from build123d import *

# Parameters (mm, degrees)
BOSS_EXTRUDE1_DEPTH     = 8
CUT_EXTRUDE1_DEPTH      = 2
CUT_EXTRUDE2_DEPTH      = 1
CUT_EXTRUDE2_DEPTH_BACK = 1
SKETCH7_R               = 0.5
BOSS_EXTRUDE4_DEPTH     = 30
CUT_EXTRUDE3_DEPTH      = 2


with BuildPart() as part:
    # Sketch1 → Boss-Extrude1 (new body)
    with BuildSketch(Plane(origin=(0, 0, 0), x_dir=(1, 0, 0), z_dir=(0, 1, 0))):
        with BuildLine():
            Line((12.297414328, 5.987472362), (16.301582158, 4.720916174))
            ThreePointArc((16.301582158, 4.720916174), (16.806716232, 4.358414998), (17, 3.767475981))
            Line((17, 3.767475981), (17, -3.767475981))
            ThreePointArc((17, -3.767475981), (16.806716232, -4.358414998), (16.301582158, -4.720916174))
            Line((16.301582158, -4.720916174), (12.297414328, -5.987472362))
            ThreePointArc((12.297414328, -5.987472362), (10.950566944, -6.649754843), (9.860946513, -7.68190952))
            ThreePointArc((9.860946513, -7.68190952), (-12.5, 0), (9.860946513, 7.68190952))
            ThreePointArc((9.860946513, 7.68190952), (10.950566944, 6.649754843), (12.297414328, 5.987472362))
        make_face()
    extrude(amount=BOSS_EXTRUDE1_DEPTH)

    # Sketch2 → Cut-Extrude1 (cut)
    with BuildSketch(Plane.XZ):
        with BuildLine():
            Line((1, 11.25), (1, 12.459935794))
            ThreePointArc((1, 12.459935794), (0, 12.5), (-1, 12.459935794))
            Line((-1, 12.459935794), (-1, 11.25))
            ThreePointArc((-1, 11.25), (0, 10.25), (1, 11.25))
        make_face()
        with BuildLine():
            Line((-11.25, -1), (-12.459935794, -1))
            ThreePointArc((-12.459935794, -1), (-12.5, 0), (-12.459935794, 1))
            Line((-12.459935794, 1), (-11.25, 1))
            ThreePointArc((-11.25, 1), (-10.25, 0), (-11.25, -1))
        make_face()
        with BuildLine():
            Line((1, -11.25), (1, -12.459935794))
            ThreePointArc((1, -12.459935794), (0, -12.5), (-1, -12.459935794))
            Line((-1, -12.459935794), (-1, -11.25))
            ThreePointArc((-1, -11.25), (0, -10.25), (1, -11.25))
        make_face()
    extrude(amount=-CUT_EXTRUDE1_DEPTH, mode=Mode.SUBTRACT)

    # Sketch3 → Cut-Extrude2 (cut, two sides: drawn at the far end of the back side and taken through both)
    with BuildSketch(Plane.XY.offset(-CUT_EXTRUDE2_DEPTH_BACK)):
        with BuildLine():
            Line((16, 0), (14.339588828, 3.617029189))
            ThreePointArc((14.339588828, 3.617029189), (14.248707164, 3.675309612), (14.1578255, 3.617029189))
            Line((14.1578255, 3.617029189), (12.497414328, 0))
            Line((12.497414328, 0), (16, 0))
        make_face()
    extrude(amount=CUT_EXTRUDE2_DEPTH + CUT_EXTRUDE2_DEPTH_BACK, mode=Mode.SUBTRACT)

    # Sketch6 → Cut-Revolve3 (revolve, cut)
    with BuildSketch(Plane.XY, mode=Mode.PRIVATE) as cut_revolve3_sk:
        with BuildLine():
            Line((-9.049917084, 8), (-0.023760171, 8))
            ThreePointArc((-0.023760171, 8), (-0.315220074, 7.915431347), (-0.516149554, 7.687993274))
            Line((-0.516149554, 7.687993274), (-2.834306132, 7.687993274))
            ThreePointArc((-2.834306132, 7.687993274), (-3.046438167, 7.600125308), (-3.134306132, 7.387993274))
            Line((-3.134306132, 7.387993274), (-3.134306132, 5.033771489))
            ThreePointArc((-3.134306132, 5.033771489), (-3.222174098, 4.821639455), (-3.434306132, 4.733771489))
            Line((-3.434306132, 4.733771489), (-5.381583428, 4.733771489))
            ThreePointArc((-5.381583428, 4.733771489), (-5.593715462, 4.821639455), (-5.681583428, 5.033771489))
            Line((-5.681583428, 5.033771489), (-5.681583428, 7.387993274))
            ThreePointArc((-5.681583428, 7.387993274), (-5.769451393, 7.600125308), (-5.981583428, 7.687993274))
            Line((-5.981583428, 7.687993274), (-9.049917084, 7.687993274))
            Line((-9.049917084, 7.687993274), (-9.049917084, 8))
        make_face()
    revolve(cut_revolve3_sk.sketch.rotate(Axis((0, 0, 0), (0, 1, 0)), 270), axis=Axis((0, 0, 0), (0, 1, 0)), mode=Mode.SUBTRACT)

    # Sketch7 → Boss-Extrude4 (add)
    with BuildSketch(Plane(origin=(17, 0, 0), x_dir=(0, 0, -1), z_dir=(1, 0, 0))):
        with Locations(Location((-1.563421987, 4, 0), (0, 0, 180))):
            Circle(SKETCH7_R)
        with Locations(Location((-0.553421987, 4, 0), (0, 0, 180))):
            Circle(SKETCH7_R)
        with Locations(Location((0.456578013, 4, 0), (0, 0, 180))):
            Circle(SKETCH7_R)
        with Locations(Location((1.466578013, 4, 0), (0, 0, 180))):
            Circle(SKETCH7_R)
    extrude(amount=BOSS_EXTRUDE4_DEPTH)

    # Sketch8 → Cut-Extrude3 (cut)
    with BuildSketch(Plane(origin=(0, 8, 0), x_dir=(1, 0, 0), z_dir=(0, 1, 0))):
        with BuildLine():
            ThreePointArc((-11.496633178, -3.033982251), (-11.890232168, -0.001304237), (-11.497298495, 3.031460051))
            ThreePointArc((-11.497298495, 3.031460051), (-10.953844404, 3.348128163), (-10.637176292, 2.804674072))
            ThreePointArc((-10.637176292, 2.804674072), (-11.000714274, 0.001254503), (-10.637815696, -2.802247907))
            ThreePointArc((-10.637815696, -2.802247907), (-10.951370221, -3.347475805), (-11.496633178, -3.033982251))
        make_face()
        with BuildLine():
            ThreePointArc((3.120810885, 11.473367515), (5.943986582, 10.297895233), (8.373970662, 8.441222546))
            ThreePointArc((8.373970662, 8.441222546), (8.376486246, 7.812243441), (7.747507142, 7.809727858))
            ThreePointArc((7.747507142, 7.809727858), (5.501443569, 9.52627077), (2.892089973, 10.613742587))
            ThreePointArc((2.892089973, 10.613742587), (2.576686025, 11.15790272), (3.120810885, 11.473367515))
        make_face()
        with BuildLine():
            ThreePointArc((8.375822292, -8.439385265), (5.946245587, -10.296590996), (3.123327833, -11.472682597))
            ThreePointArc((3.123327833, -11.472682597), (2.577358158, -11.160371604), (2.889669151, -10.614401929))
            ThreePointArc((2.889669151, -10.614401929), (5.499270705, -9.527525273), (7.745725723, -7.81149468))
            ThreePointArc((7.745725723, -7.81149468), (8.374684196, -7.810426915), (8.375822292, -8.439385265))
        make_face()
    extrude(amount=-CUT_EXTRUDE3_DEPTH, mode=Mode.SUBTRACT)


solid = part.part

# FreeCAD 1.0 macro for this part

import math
import FreeCAD as App
import Part
import Sketcher
from FreeCAD import Vector
Q = App.Units.Quantity

doc = App.newDocument("Part")
body = doc.addObject("PartDesign::Body", "Body")

# Sketch on XZ plane
sketch1 = body.newObject("Sketcher::SketchObject", "Sketch")
sketch1.AttachmentSupport = (doc.getObject("XZ_Plane"), [""])
sketch1.MapMode = "FlatFace"
sketch1.addGeometry(Part.LineSegment(Vector(16.301582, -4.720916, 0), Vector(12.297414, -5.987472, 0)), False)
sketch1.addGeometry(Part.ArcOfCircle(Part.Circle(Vector(13.805325, -10.754673, 0), Vector(0, 0, 1), 5), math.radians(107.552656), math.radians(142.08057)), False)
sketch1.addGeometry(Part.ArcOfCircle(Part.Circle(Vector(0, 0, 0), Vector(0, 0, 1), 12.5), math.radians(37.91943), math.radians(322.08057)), False)
sketch1.addGeometry(Part.ArcOfCircle(Part.Circle(Vector(13.805325, 10.754673, 0), Vector(0, 0, 1), 5), math.radians(-142.08057), math.radians(-107.552656)), False)
sketch1.addGeometry(Part.LineSegment(Vector(12.297414, 5.987472, 0), Vector(16.301582, 4.720916, 0)), False)
sketch1.addGeometry(Part.ArcOfCircle(Part.Circle(Vector(16, 3.767476, 0), Vector(0, 0, 1), 1), math.radians(0), math.radians(72.447344)), False)
sketch1.addGeometry(Part.LineSegment(Vector(17, 3.767476, 0), Vector(17, -3.767476, 0)), False)
sketch1.addGeometry(Part.ArcOfCircle(Part.Circle(Vector(16, -3.767476, 0), Vector(0, 0, 1), 1), math.radians(-72.447344), math.radians(0)), False)
sketch1.addConstraint(Sketcher.Constraint("Tangent", 0, 2, 1, 1))
sketch1.addConstraint(Sketcher.Constraint("Tangent", 1, 2, 2, 2))
sketch1.addConstraint(Sketcher.Constraint("Tangent", 2, 1, 3, 1))
sketch1.addConstraint(Sketcher.Constraint("Tangent", 3, 2, 4, 1))
sketch1.addConstraint(Sketcher.Constraint("Tangent", 4, 2, 5, 2))
sketch1.addConstraint(Sketcher.Constraint("Tangent", 5, 1, 6, 1))
sketch1.addConstraint(Sketcher.Constraint("Tangent", 6, 2, 7, 2))
sketch1.addConstraint(Sketcher.Constraint("Tangent", 7, 1, 0, 1))
sketch1.addConstraint(Sketcher.Constraint("Vertical", 6))
sketch1.addConstraint(Sketcher.Constraint("Coincident", 2, 3, -1, 1))
sketch1.addConstraint(Sketcher.Constraint("Equal", 1, 3))
sketch1.addConstraint(Sketcher.Constraint("Equal", 5, 7))
sketch1.addConstraint(Sketcher.Constraint("Symmetric", 0, 2, 3, 2, -1))
sketch1.addConstraint(Sketcher.Constraint("Radius", 1, Q("5 mm")))
sketch1.addConstraint(Sketcher.Constraint("Radius", 5, Q("1 mm")))
sketch1.addConstraint(Sketcher.Constraint("Radius", 2, Q("12.5 mm")))
sketch1.addConstraint(Sketcher.Constraint("DistanceX", -1, 1, 5, 3, Q("16 mm")))
sketch1.addConstraint(Sketcher.Constraint("DistanceY", 6, 2, 6, 1, Q("7.534952 mm")))
sketch1.addConstraint(Sketcher.Constraint("DistanceY", 1, 3, 0, 2, Q("4.767201 mm")))
pad1 = body.newObject("PartDesign::Pad", "Pad")
pad1.Profile = sketch1
pad1.Length = 8
pad1.Reversed = True

# Sketch on XZ plane
sketch2 = body.newObject("Sketcher::SketchObject", "Sketch001")
sketch2.AttachmentSupport = (doc.getObject("XZ_Plane"), [""])
sketch2.MapMode = "FlatFace"
sketch2.addGeometry(Part.LineSegment(Vector(1, 11.25, 0), Vector(1, 12.459936, 0)), False)
sketch2.addGeometry(Part.ArcOfCircle(Part.Circle(Vector(0, 0, 0), Vector(0, 0, 1), 12.5), math.radians(85.411434), math.radians(94.588566)), False)
sketch2.addGeometry(Part.LineSegment(Vector(-1, 12.459936, 0), Vector(-1, 11.25, 0)), False)
sketch2.addGeometry(Part.ArcOfCircle(Part.Circle(Vector(0, 11.25, 0), Vector(0, 0, 1), 1), math.radians(180), math.radians(360)), False)
sketch2.addGeometry(Part.LineSegment(Vector(-12.459936, -1, 0), Vector(-11.25, -1, 0)), False)
sketch2.addGeometry(Part.ArcOfCircle(Part.Circle(Vector(-11.25, 0, 0), Vector(0, 0, 1), 1), math.radians(-90), math.radians(90)), False)
sketch2.addGeometry(Part.LineSegment(Vector(-11.25, 1, 0), Vector(-12.459936, 1, 0)), False)
sketch2.addGeometry(Part.ArcOfCircle(Part.Circle(Vector(0, 0, 0), Vector(0, 0, 1), 12.5), math.radians(175.411434), math.radians(184.588566)), False)
sketch2.addGeometry(Part.LineSegment(Vector(1, -12.459936, 0), Vector(1, -11.25, 0)), False)
sketch2.addGeometry(Part.ArcOfCircle(Part.Circle(Vector(0, -11.25, 0), Vector(0, 0, 1), 1), math.radians(0), math.radians(180)), False)
sketch2.addGeometry(Part.LineSegment(Vector(-1, -11.25, 0), Vector(-1, -12.459936, 0)), False)
sketch2.addGeometry(Part.ArcOfCircle(Part.Circle(Vector(0, 0, 0), Vector(0, 0, 1), 12.5), math.radians(-94.588566), math.radians(-85.411434)), False)
sketch2.addConstraint(Sketcher.Constraint("Coincident", 0, 2, 1, 1))
sketch2.addConstraint(Sketcher.Constraint("Coincident", 1, 2, 2, 1))
sketch2.addConstraint(Sketcher.Constraint("Tangent", 2, 2, 3, 1))
sketch2.addConstraint(Sketcher.Constraint("Tangent", 3, 2, 0, 1))
sketch2.addConstraint(Sketcher.Constraint("Tangent", 4, 2, 5, 1))
sketch2.addConstraint(Sketcher.Constraint("Tangent", 5, 2, 6, 1))
sketch2.addConstraint(Sketcher.Constraint("Coincident", 6, 2, 7, 1))
sketch2.addConstraint(Sketcher.Constraint("Coincident", 7, 2, 4, 1))
sketch2.addConstraint(Sketcher.Constraint("Tangent", 8, 2, 9, 1))
sketch2.addConstraint(Sketcher.Constraint("Tangent", 9, 2, 10, 1))
sketch2.addConstraint(Sketcher.Constraint("Coincident", 10, 2, 11, 1))
sketch2.addConstraint(Sketcher.Constraint("Coincident", 11, 2, 8, 1))
sketch2.addConstraint(Sketcher.Constraint("Vertical", 0))
sketch2.addConstraint(Sketcher.Constraint("Vertical", 2))
sketch2.addConstraint(Sketcher.Constraint("Horizontal", 4))
sketch2.addConstraint(Sketcher.Constraint("Horizontal", 6))
sketch2.addConstraint(Sketcher.Constraint("Vertical", 8))
sketch2.addConstraint(Sketcher.Constraint("Vertical", 10))
sketch2.addConstraint(Sketcher.Constraint("Coincident", 1, 3, -1, 1))
sketch2.addConstraint(Sketcher.Constraint("Coincident", 7, 3, -1, 1))
sketch2.addConstraint(Sketcher.Constraint("Coincident", 11, 3, -1, 1))
sketch2.addConstraint(Sketcher.Constraint("Equal", 3, 5))
sketch2.addConstraint(Sketcher.Constraint("Equal", 1, 7))
sketch2.addConstraint(Sketcher.Constraint("Equal", 5, 9))
sketch2.addConstraint(Sketcher.Constraint("Equal", 7, 11))
sketch2.addConstraint(Sketcher.Constraint("Symmetric", 3, 3, 9, 3, -1, 1))
sketch2.addConstraint(Sketcher.Constraint("PointOnObject", 3, 3, -2))
sketch2.addConstraint(Sketcher.Constraint("PointOnObject", 5, 3, -1))
sketch2.addConstraint(Sketcher.Constraint("Equal", 6, 0))
sketch2.addConstraint(Sketcher.Constraint("Radius", 3, Q("1 mm")))
sketch2.addConstraint(Sketcher.Constraint("Radius", 1, Q("12.5 mm")))
sketch2.addConstraint(Sketcher.Constraint("DistanceY", 9, 3, 3, 3, Q("22.5 mm")))
pocket1 = body.newObject("PartDesign::Pocket", "Pocket")
pocket1.Profile = sketch2
pocket1.Length = 2

# Sketch on XY plane
sketch3 = body.newObject("Sketcher::SketchObject", "Sketch002")
sketch3.AttachmentSupport = (doc.getObject("XY_Plane"), [""])
sketch3.MapMode = "FlatFace"
sketch3.addGeometry(Part.LineSegment(Vector(16, 0, 0), Vector(14.339589, 3.617029, 0)), False)
sketch3.addGeometry(Part.ArcOfCircle(Part.Circle(Vector(14.248707, 3.57531, 0), Vector(0, 0, 1), 0.1), math.radians(24.657671), math.radians(155.342329)), False)
sketch3.addGeometry(Part.LineSegment(Vector(14.157825, 3.617029, 0), Vector(12.497414, 0, 0)), False)
sketch3.addGeometry(Part.LineSegment(Vector(12.497414, 0, 0), Vector(16, 0, 0)), False)
sketch3.addConstraint(Sketcher.Constraint("Tangent", 0, 2, 1, 1))
sketch3.addConstraint(Sketcher.Constraint("Tangent", 1, 2, 2, 1))
sketch3.addConstraint(Sketcher.Constraint("Coincident", 2, 2, 3, 1))
sketch3.addConstraint(Sketcher.Constraint("Coincident", 3, 2, 0, 1))
sketch3.addConstraint(Sketcher.Constraint("Horizontal", 3))
sketch3.addConstraint(Sketcher.Constraint("PointOnObject", 2, 2, -1))
sketch3.addConstraint(Sketcher.Constraint("Horizontal", 0, 2, 1, 2))
sketch3.addConstraint(Sketcher.Constraint("Radius", 1, Q("0.1 mm")))
sketch3.addConstraint(Sketcher.Constraint("DistanceX", -1, 1, 3, 2, Q("16 mm")))
sketch3.addConstraint(Sketcher.Constraint("DistanceX", 3, 1, 3, 2, Q("3.502586 mm")))
sketch3.addConstraint(Sketcher.Constraint("DistanceY", -1, 1, 1, 3, Q("3.57531 mm")))
pocket2 = body.newObject("PartDesign::Pocket", "Pocket001")
pocket2.Profile = sketch3
pocket2.Type = "TwoLengths"
pocket2.Length = 1
pocket2.Length2 = 1
pocket2.Reversed = True

# Sketch on XY plane
sketch4 = body.newObject("Sketcher::SketchObject", "Sketch003")
sketch4.AttachmentSupport = (doc.getObject("XY_Plane"), [""])
sketch4.MapMode = "FlatFace"
sketch4.addGeometry(Part.LineSegment(Vector(-0.02376, 8, 0), Vector(-9.049917, 8, 0)), False)
sketch4.addGeometry(Part.LineSegment(Vector(-9.049917, 8, 0), Vector(-9.049917, 7.687993, 0)), False)
sketch4.addGeometry(Part.LineSegment(Vector(-9.049917, 7.687993, 0), Vector(-5.981583, 7.687993, 0)), False)
sketch4.addGeometry(Part.ArcOfCircle(Part.Circle(Vector(-5.981583, 7.387993, 0), Vector(0, 0, 1), 0.3), math.radians(0), math.radians(90)), False)
sketch4.addGeometry(Part.LineSegment(Vector(-5.681583, 7.387993, 0), Vector(-5.681583, 5.033771, 0)), False)
sketch4.addGeometry(Part.ArcOfCircle(Part.Circle(Vector(-5.381583, 5.033771, 0), Vector(0, 0, 1), 0.3), math.radians(-180), math.radians(-90)), False)
sketch4.addGeometry(Part.LineSegment(Vector(-5.381583, 4.733771, 0), Vector(-3.434306, 4.733771, 0)), False)
sketch4.addGeometry(Part.ArcOfCircle(Part.Circle(Vector(-3.434306, 5.033771, 0), Vector(0, 0, 1), 0.3), math.radians(-90), math.radians(0)), False)
sketch4.addGeometry(Part.LineSegment(Vector(-3.134306, 5.033771, 0), Vector(-3.134306, 7.387993, 0)), False)
sketch4.addGeometry(Part.ArcOfCircle(Part.Circle(Vector(-2.834306, 7.387993, 0), Vector(0, 0, 1), 0.3), math.radians(90), math.radians(180)), False)
sketch4.addGeometry(Part.LineSegment(Vector(-2.834306, 7.687993, 0), Vector(-0.51615, 7.687993, 0)), False)
sketch4.addGeometry(Part.ArcOfCircle(Part.Circle(Vector(-0.02376, 7.455468, 0), Vector(0, 0, 1), 0.544532), math.radians(90), math.radians(154.721479)), False)
sketch4.addConstraint(Sketcher.Constraint("Coincident", 0, 2, 1, 1))
sketch4.addConstraint(Sketcher.Constraint("Coincident", 1, 2, 2, 1))
sketch4.addConstraint(Sketcher.Constraint("Tangent", 2, 2, 3, 2))
sketch4.addConstraint(Sketcher.Constraint("Tangent", 3, 1, 4, 1))
sketch4.addConstraint(Sketcher.Constraint("Tangent", 4, 2, 5, 1))
sketch4.addConstraint(Sketcher.Constraint("Tangent", 5, 2, 6, 1))
sketch4.addConstraint(Sketcher.Constraint("Tangent", 6, 2, 7, 1))
sketch4.addConstraint(Sketcher.Constraint("Tangent", 7, 2, 8, 1))
sketch4.addConstraint(Sketcher.Constraint("Tangent", 8, 2, 9, 2))
sketch4.addConstraint(Sketcher.Constraint("Tangent", 9, 1, 10, 1))
sketch4.addConstraint(Sketcher.Constraint("Coincident", 10, 2, 11, 2))
sketch4.addConstraint(Sketcher.Constraint("Tangent", 11, 1, 0, 1))
sketch4.addConstraint(Sketcher.Constraint("Horizontal", 0))
sketch4.addConstraint(Sketcher.Constraint("Vertical", 1))
sketch4.addConstraint(Sketcher.Constraint("Horizontal", 2))
sketch4.addConstraint(Sketcher.Constraint("Vertical", 4))
sketch4.addConstraint(Sketcher.Constraint("Horizontal", 6))
sketch4.addConstraint(Sketcher.Constraint("Vertical", 8))
sketch4.addConstraint(Sketcher.Constraint("Horizontal", 10))
sketch4.addConstraint(Sketcher.Constraint("Equal", 3, 5))
sketch4.addConstraint(Sketcher.Constraint("Equal", 5, 7))
sketch4.addConstraint(Sketcher.Constraint("Equal", 7, 9))
sketch4.addConstraint(Sketcher.Constraint("Horizontal", 3, 3, 9, 3))
sketch4.addConstraint(Sketcher.Constraint("Radius", 3, Q("0.3 mm")))
sketch4.addConstraint(Sketcher.Constraint("DistanceY", -1, 1, 0, 2, Q("8 mm")))
sketch4.addConstraint(Sketcher.Constraint("Radius", 11, Q("0.544532 mm")))
sketch4.addConstraint(Sketcher.Constraint("DistanceY", 4, 2, 4, 1, Q("2.354222 mm")))
sketch4.addConstraint(Sketcher.Constraint("DistanceX", 0, 2, 0, 1, Q("9.026157 mm")))
sketch4.addConstraint(Sketcher.Constraint("DistanceX", 2, 1, 2, 2, Q("3.068334 mm")))
sketch4.addConstraint(Sketcher.Constraint("DistanceX", 6, 1, 6, 2, Q("1.947277 mm")))
sketch4.addConstraint(Sketcher.Constraint("DistanceX", 10, 1, 10, 2, Q("2.318157 mm")))
sketch4.addConstraint(Sketcher.Constraint("DistanceX", 11, 3, -1, 1, Q("0.02376 mm")))
groove = body.newObject("PartDesign::Groove", "Groove")
groove.Profile = sketch4
groove.ReferenceAxis = (sketch4, ["V_Axis"])
groove.Angle = 360

# Sketch on YZ plane
sketch5 = body.newObject("Sketcher::SketchObject", "Sketch004")
sketch5.AttachmentSupport = (doc.getObject("YZ_Plane"), [""])
sketch5.MapMode = "FlatFace"
sketch5.AttachmentOffset = App.Placement(Vector(0, 0, 17), App.Rotation())
sketch5.addGeometry(Part.Circle(Vector(4, 1.563422, 0), Vector(0, 0, 1), 0.5), False)
sketch5.addGeometry(Part.Circle(Vector(4, 0.553422, 0), Vector(0, 0, 1), 0.5), False)
sketch5.addGeometry(Part.Circle(Vector(4, -0.456578, 0), Vector(0, 0, 1), 0.5), False)
sketch5.addGeometry(Part.Circle(Vector(4, -1.466578, 0), Vector(0, 0, 1), 0.5), False)
sketch5.addConstraint(Sketcher.Constraint("Equal", 0, 1))
sketch5.addConstraint(Sketcher.Constraint("Equal", 1, 2))
sketch5.addConstraint(Sketcher.Constraint("Equal", 2, 3))
sketch5.addConstraint(Sketcher.Constraint("Vertical", 0, 3, 1, 3))
sketch5.addConstraint(Sketcher.Constraint("Vertical", 1, 3, 2, 3))
sketch5.addConstraint(Sketcher.Constraint("Vertical", 2, 3, 3, 3))
sketch5.addConstraint(Sketcher.Constraint("Diameter", 0, Q("1 mm")))
sketch5.addConstraint(Sketcher.Constraint("DistanceX", -1, 1, 0, 3, Q("4 mm")))
sketch5.addConstraint(Sketcher.Constraint("DistanceY", 1, 3, 0, 3, Q("1.01 mm")))
sketch5.addConstraint(Sketcher.Constraint("DistanceY", 2, 3, 1, 3, Q("1.01 mm")))
sketch5.addConstraint(Sketcher.Constraint("DistanceY", 3, 3, 2, 3, Q("1.01 mm")))
sketch5.addConstraint(Sketcher.Constraint("DistanceY", -1, 1, 0, 3, Q("1.563422 mm")))
pad2 = body.newObject("PartDesign::Pad", "Pad001")
pad2.Profile = sketch5
pad2.Length = 30

# Sketch on XZ plane
sketch6 = body.newObject("Sketcher::SketchObject", "Sketch005")
sketch6.AttachmentSupport = (doc.getObject("XZ_Plane"), [""])
sketch6.MapMode = "FlatFace"
sketch6.AttachmentOffset = App.Placement(Vector(0, 0, -8), App.Rotation())
sketch6.addGeometry(Part.ArcOfCircle(Part.Circle(Vector(0, 0, 0), Vector(0, 0, 1), 11.890232), math.radians(165.216582), math.radians(194.770848)), False)
sketch6.addGeometry(Part.ArcOfCircle(Part.Circle(Vector(-11.067237, 2.918067, 0), Vector(0, 0, 1), 0.444766), math.radians(-15.094066), math.radians(164.89312)), False)
sketch6.addGeometry(Part.ArcOfCircle(Part.Circle(Vector(0, 0, 0), Vector(0, 0, 1), 11.000714), math.radians(165.242219), math.radians(194.770848)), False)
sketch6.addGeometry(Part.ArcOfCircle(Part.Circle(Vector(-11.067237, -2.918067, 0), Vector(0, 0, 1), 0.444759), math.radians(-165.229152), math.radians(14.770848)), False)
sketch6.addGeometry(Part.ArcOfCircle(Part.Circle(Vector(0, 0, 0), Vector(0, 0, 1), 11.890232), math.radians(-74.783418), math.radians(-45.229152)), False)
sketch6.addGeometry(Part.ArcOfCircle(Part.Circle(Vector(3.006498, -11.043542, 0), Vector(0, 0, 1), 0.444766), math.radians(104.905934), math.radians(284.89312)), False)
sketch6.addGeometry(Part.ArcOfCircle(Part.Circle(Vector(0, 0, 0), Vector(0, 0, 1), 11.000714), math.radians(-74.757781), math.radians(-45.229152)), False)
sketch6.addGeometry(Part.ArcOfCircle(Part.Circle(Vector(8.060739, -8.125475, 0), Vector(0, 0, 1), 0.444759), math.radians(-45.229152), math.radians(134.770848)), False)
sketch6.addGeometry(Part.ArcOfCircle(Part.Circle(Vector(0, 0, 0), Vector(0, 0, 1), 11.890232), math.radians(45.216582), math.radians(74.770848)), False)
sketch6.addGeometry(Part.ArcOfCircle(Part.Circle(Vector(8.060739, 8.125475, 0), Vector(0, 0, 1), 0.444766), math.radians(-135.094066), math.radians(44.89312)), False)
sketch6.addGeometry(Part.ArcOfCircle(Part.Circle(Vector(0, 0, 0), Vector(0, 0, 1), 11.000714), math.radians(45.242219), math.radians(74.770848)), False)
sketch6.addGeometry(Part.ArcOfCircle(Part.Circle(Vector(3.006498, 11.043542, 0), Vector(0, 0, 1), 0.444759), math.radians(74.770848), math.radians(254.770848)), False)
sketch6.addConstraint(Sketcher.Constraint("Coincident", 0, 1, 1, 2))
sketch6.addConstraint(Sketcher.Constraint("Coincident", 1, 1, 2, 1))
sketch6.addConstraint(Sketcher.Constraint("Tangent", 2, 2, 3, 2))
sketch6.addConstraint(Sketcher.Constraint("Tangent", 3, 1, 0, 2))
sketch6.addConstraint(Sketcher.Constraint("Coincident", 4, 1, 5, 2))
sketch6.addConstraint(Sketcher.Constraint("Coincident", 5, 1, 6, 1))
sketch6.addConstraint(Sketcher.Constraint("Tangent", 6, 2, 7, 2))
sketch6.addConstraint(Sketcher.Constraint("Tangent", 7, 1, 4, 2))
sketch6.addConstraint(Sketcher.Constraint("Coincident", 8, 1, 9, 2))
sketch6.addConstraint(Sketcher.Constraint("Coincident", 9, 1, 10, 1))
sketch6.addConstraint(Sketcher.Constraint("Tangent", 10, 2, 11, 2))
sketch6.addConstraint(Sketcher.Constraint("Tangent", 11, 1, 8, 2))
sketch6.addConstraint(Sketcher.Constraint("Coincident", 0, 3, -1, 1))
sketch6.addConstraint(Sketcher.Constraint("Coincident", 2, 3, -1, 1))
sketch6.addConstraint(Sketcher.Constraint("Coincident", 4, 3, -1, 1))
sketch6.addConstraint(Sketcher.Constraint("Coincident", 6, 3, -1, 1))
sketch6.addConstraint(Sketcher.Constraint("Coincident", 8, 3, -1, 1))
sketch6.addConstraint(Sketcher.Constraint("Coincident", 10, 3, -1, 1))
sketch6.addConstraint(Sketcher.Constraint("Equal", 0, 4))
sketch6.addConstraint(Sketcher.Constraint("Equal", 1, 5))
sketch6.addConstraint(Sketcher.Constraint("Equal", 2, 6))
sketch6.addConstraint(Sketcher.Constraint("Equal", 4, 8))
sketch6.addConstraint(Sketcher.Constraint("Equal", 5, 9))
sketch6.addConstraint(Sketcher.Constraint("Equal", 6, 10))
sketch6.addConstraint(Sketcher.Constraint("Symmetric", 1, 3, 3, 3, -1))
sketch6.addConstraint(Sketcher.Constraint("Vertical", 7, 3, 9, 3))
sketch6.addConstraint(Sketcher.Constraint("Vertical", 5, 3, 11, 3))
sketch6.addConstraint(Sketcher.Constraint("Radius", 3, Q("0.444759 mm")))
sketch6.addConstraint(Sketcher.Constraint("Radius", 0, Q("11.890232 mm")))
sketch6.addConstraint(Sketcher.Constraint("DistanceX", -1, 1, 5, 3, Q("3.006498 mm")))
sketch6.addConstraint(Sketcher.Constraint("DistanceX", 3, 1, -1, 1, Q("11.497298 mm")))
sketch6.addConstraint(Sketcher.Constraint("DistanceY", 5, 3, 5, 1, Q("0.4298 mm")))
sketch6.addConstraint(Sketcher.Constraint("DistanceX", -1, 1, 7, 3, Q("8.060739 mm")))
sketch6.addConstraint(Sketcher.Constraint("DistanceX", -1, 1, 4, 1, Q("3.120811 mm")))
sketch6.addConstraint(Sketcher.Constraint("DistanceY", 9, 3, 8, 1, Q("0.31391 mm")))
pocket3 = body.newObject("PartDesign::Pocket", "Pocket002")
pocket3.Profile = sketch6
pocket3.Length = 2
pocket3.Reversed = True

doc.recompute()
